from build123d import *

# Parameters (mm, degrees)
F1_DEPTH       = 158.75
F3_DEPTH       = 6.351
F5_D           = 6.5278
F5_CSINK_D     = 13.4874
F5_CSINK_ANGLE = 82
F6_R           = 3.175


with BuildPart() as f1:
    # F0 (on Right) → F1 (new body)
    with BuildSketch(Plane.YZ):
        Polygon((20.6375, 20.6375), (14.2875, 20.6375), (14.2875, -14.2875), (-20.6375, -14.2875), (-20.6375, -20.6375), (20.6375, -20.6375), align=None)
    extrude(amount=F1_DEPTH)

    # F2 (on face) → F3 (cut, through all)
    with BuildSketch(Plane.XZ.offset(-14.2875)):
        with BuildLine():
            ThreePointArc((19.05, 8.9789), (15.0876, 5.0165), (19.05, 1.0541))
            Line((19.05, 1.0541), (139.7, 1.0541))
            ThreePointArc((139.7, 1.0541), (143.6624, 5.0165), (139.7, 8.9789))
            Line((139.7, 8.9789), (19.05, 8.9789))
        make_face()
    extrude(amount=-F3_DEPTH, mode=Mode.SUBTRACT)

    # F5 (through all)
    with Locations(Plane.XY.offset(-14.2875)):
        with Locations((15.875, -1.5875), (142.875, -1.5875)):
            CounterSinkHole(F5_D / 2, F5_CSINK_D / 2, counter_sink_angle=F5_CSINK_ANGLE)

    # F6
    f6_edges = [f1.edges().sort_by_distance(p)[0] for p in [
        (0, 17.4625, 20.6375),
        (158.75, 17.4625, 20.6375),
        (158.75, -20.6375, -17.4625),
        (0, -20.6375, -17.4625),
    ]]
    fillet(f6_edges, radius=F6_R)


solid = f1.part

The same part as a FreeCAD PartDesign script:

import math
import FreeCAD as App
import Part
import Sketcher

V = App.Vector
Q = App.Units.Quantity


def edges_at(feature, points):
    """Names of the edges that pass closest to the given points."""
    edges = feature.Shape.Edges
    near = lambda p: min(range(len(edges)), key=lambda i: edges[i].distToShape(Part.Vertex(*p))[0])
    return sorted({f"Edge{near(p) + 1}" for p in points})


def add_polygon(sketch, points):
    """Adds a closed chain of lines whose ends are joined by coincident constraints."""
    first, n = sketch.GeometryCount, len(points)
    for a, b in zip(points, points[1:] + points[:1]):
        sketch.addGeometry(Part.LineSegment(App.Vector(*a, 0), App.Vector(*b, 0)), False)
    for i in range(n):
        sketch.addConstraint(Sketcher.Constraint("Coincident", first + i, 2, first + (i + 1) % n, 1))

doc = App.newDocument("Part")
params = doc.addObject("Spreadsheet::Sheet", "Params")
for row, (alias, value) in enumerate([
    ("sketch1_width", "0.25 in"),
    ("sketch1_width2", "1.375 in"),
    ("pad1_length", "6.25 in"),
    ("sketch2_radius", "0.156 in"),
    ("sketch2_width", "4.75 in"),
    ("sketch3_diameter", "0.257 in"),
    ("hole_diameter", "0.257 in"),
    ("hole_csink_diameter", "0.531 in"),
    ("fillet_radius", "0.125 in"),
], start=1):
    params.set(f"A{row}", alias)
    params.set(f"B{row}", "=" + value)
    params.setAlias(f"B{row}", alias)

body = doc.addObject("PartDesign::Body", "Body")

# Sketch on YZ plane
sketch1 = body.newObject("Sketcher::SketchObject", "Sketch")
sketch1.AttachmentSupport = (doc.getObject("YZ_Plane"), [""])
sketch1.MapMode = "FlatFace"
add_polygon(sketch1, [(21, 21), (14, 21), (14, -14), (-21, -14), (-21, -21), (21, -21)])  # lines 0-5
sketch1.addConstraint(Sketcher.Constraint("Horizontal", 0))
sketch1.addConstraint(Sketcher.Constraint("Vertical", 1))
sketch1.addConstraint(Sketcher.Constraint("Horizontal", 2))
sketch1.addConstraint(Sketcher.Constraint("Vertical", 3))
sketch1.addConstraint(Sketcher.Constraint("Horizontal", 4))
sketch1.addConstraint(Sketcher.Constraint("Vertical", 5))
sketch1.addConstraint(Sketcher.Constraint("Symmetric", 3, 2, 5, 2, -1, 1))
sketch1.addConstraint(Sketcher.Constraint("Equal", 2, 1))
sketch1.addConstraint(Sketcher.Constraint("Equal", 0, 3))
sketch1.addConstraint(Sketcher.Constraint("DistanceX", 0, 2, 0, 1, Q("0.25 in")))
sketch1.addConstraint(Sketcher.Constraint("DistanceX", 2, 2, 2, 1, Q("1.375 in")))
sketch1.setExpression("Constraints[15]", "Params.sketch1_width")
sketch1.setExpression("Constraints[16]", "Params.sketch1_width2")
pad1 = body.newObject("PartDesign::Pad", "Pad")
pad1.Profile = sketch1
pad1.setExpression("Length", "Params.pad1_length")

# Sketch on XZ plane
sketch2 = body.newObject("Sketcher::SketchObject", "Sketch001")
sketch2.AttachmentSupport = (doc.getObject("XZ_Plane"), [""])
sketch2.MapMode = "FlatFace"
sketch2.AttachmentOffset = App.Placement(V(0, 0, -0.5625 * 25.4), App.Rotation())
sketch2.addGeometry(Part.ArcOfCircle(Part.Circle(V(19.1, 5, 0), V(0, 0, 1), 4), math.radians(90), math.radians(270)), False)
sketch2.addGeometry(Part.LineSegment(V(19.1, 1.1, 0), V(139.7, 1.1, 0)), False)
sketch2.addGeometry(Part.ArcOfCircle(Part.Circle(V(139.7, 5, 0), V(0, 0, 1), 4), math.radians(-90), math.radians(90)), False)
sketch2.addGeometry(Part.LineSegment(V(139.7, 9, 0), V(19.1, 9, 0)), False)
sketch2.addConstraint(Sketcher.Constraint("Tangent", 0, 2, 1, 1))
sketch2.addConstraint(Sketcher.Constraint("Tangent", 1, 2, 2, 1))
sketch2.addConstraint(Sketcher.Constraint("Tangent", 2, 2, 3, 1))
sketch2.addConstraint(Sketcher.Constraint("Tangent", 3, 2, 0, 1))
sketch2.addConstraint(Sketcher.Constraint("Horizontal", 1))
sketch2.addConstraint(Sketcher.Constraint("Horizontal", 3))
sketch2.addConstraint(Sketcher.Constraint("Radius", 0, Q("0.156 in")))
sketch2.addConstraint(Sketcher.Constraint("DistanceX", 1, 1, 1, 2, Q("4.75 in")))
sketch2.addConstraint(Sketcher.Constraint("DistanceX", -1, 1, 2, 3, Q("5.5 in")))
sketch2.addConstraint(Sketcher.Constraint("DistanceY", -1, 1, 0, 3, Q("0.1975 in")))
sketch2.setExpression("Constraints[6]", "Params.sketch2_radius")
sketch2.setExpression("Constraints[7]", "Params.sketch2_width")
pocket1 = body.newObject("PartDesign::Pocket", "Pocket")
pocket1.Profile = sketch2
pocket1.Type = "ThroughAll"

# Sketch on XY plane
sketch3 = body.newObject("Sketcher::SketchObject", "Sketch002")
sketch3.AttachmentSupport = (doc.getObject("XY_Plane"), [""])
sketch3.MapMode = "FlatFace"
sketch3.AttachmentOffset = App.Placement(V(0, 0, -0.5625 * 25.4), App.Rotation())
sketch3.addGeometry(Part.Circle(V(15.9, -1.6, 0), V(0, 0, 1), 3.3), False)
sketch3.addGeometry(Part.Circle(V(142.9, -1.6, 0), V(0, 0, 1), 3.3), False)
sketch3.addConstraint(Sketcher.Constraint("Equal", 0, 1))
sketch3.addConstraint(Sketcher.Constraint("Horizontal", 0, 3, 1, 3))
sketch3.addConstraint(Sketcher.Constraint("Diameter", 0, Q("0.257 in")))
sketch3.addConstraint(Sketcher.Constraint("DistanceX", 0, 3, 1, 3, Q("5 in")))
sketch3.addConstraint(Sketcher.Constraint("DistanceX", -1, 1, 0, 3, Q("0.625 in")))
sketch3.addConstraint(Sketcher.Constraint("DistanceY", 0, 3, -1, 1, Q("0.0625 in")))
sketch3.setExpression("Constraints[2]", "Params.sketch3_diameter")
doc.recompute()
hole = body.newObject("PartDesign::Hole", "Hole")
hole.Profile = sketch3
hole.ThreadType = "None"
hole.setExpression("Diameter", "Params.hole_diameter")
hole.DepthType = "ThroughAll"
hole.HoleCutType = "Countersink"
hole.setExpression("HoleCutDiameter", "Params.hole_csink_diameter")
hole.HoleCutCountersinkAngle = 82
doc.recompute()

fillet = body.newObject("PartDesign::Fillet", "Fillet")
fillet.Base = (hole, edges_at(hole, [
    (0, 17.462, 20.637),
    (158.75, 17.462, 20.637),
    (158.75, -20.637, -17.462),
    (0, -20.637, -17.462),
]))
fillet.setExpression("Radius", "Params.fillet_radius")

doc.recompute()
